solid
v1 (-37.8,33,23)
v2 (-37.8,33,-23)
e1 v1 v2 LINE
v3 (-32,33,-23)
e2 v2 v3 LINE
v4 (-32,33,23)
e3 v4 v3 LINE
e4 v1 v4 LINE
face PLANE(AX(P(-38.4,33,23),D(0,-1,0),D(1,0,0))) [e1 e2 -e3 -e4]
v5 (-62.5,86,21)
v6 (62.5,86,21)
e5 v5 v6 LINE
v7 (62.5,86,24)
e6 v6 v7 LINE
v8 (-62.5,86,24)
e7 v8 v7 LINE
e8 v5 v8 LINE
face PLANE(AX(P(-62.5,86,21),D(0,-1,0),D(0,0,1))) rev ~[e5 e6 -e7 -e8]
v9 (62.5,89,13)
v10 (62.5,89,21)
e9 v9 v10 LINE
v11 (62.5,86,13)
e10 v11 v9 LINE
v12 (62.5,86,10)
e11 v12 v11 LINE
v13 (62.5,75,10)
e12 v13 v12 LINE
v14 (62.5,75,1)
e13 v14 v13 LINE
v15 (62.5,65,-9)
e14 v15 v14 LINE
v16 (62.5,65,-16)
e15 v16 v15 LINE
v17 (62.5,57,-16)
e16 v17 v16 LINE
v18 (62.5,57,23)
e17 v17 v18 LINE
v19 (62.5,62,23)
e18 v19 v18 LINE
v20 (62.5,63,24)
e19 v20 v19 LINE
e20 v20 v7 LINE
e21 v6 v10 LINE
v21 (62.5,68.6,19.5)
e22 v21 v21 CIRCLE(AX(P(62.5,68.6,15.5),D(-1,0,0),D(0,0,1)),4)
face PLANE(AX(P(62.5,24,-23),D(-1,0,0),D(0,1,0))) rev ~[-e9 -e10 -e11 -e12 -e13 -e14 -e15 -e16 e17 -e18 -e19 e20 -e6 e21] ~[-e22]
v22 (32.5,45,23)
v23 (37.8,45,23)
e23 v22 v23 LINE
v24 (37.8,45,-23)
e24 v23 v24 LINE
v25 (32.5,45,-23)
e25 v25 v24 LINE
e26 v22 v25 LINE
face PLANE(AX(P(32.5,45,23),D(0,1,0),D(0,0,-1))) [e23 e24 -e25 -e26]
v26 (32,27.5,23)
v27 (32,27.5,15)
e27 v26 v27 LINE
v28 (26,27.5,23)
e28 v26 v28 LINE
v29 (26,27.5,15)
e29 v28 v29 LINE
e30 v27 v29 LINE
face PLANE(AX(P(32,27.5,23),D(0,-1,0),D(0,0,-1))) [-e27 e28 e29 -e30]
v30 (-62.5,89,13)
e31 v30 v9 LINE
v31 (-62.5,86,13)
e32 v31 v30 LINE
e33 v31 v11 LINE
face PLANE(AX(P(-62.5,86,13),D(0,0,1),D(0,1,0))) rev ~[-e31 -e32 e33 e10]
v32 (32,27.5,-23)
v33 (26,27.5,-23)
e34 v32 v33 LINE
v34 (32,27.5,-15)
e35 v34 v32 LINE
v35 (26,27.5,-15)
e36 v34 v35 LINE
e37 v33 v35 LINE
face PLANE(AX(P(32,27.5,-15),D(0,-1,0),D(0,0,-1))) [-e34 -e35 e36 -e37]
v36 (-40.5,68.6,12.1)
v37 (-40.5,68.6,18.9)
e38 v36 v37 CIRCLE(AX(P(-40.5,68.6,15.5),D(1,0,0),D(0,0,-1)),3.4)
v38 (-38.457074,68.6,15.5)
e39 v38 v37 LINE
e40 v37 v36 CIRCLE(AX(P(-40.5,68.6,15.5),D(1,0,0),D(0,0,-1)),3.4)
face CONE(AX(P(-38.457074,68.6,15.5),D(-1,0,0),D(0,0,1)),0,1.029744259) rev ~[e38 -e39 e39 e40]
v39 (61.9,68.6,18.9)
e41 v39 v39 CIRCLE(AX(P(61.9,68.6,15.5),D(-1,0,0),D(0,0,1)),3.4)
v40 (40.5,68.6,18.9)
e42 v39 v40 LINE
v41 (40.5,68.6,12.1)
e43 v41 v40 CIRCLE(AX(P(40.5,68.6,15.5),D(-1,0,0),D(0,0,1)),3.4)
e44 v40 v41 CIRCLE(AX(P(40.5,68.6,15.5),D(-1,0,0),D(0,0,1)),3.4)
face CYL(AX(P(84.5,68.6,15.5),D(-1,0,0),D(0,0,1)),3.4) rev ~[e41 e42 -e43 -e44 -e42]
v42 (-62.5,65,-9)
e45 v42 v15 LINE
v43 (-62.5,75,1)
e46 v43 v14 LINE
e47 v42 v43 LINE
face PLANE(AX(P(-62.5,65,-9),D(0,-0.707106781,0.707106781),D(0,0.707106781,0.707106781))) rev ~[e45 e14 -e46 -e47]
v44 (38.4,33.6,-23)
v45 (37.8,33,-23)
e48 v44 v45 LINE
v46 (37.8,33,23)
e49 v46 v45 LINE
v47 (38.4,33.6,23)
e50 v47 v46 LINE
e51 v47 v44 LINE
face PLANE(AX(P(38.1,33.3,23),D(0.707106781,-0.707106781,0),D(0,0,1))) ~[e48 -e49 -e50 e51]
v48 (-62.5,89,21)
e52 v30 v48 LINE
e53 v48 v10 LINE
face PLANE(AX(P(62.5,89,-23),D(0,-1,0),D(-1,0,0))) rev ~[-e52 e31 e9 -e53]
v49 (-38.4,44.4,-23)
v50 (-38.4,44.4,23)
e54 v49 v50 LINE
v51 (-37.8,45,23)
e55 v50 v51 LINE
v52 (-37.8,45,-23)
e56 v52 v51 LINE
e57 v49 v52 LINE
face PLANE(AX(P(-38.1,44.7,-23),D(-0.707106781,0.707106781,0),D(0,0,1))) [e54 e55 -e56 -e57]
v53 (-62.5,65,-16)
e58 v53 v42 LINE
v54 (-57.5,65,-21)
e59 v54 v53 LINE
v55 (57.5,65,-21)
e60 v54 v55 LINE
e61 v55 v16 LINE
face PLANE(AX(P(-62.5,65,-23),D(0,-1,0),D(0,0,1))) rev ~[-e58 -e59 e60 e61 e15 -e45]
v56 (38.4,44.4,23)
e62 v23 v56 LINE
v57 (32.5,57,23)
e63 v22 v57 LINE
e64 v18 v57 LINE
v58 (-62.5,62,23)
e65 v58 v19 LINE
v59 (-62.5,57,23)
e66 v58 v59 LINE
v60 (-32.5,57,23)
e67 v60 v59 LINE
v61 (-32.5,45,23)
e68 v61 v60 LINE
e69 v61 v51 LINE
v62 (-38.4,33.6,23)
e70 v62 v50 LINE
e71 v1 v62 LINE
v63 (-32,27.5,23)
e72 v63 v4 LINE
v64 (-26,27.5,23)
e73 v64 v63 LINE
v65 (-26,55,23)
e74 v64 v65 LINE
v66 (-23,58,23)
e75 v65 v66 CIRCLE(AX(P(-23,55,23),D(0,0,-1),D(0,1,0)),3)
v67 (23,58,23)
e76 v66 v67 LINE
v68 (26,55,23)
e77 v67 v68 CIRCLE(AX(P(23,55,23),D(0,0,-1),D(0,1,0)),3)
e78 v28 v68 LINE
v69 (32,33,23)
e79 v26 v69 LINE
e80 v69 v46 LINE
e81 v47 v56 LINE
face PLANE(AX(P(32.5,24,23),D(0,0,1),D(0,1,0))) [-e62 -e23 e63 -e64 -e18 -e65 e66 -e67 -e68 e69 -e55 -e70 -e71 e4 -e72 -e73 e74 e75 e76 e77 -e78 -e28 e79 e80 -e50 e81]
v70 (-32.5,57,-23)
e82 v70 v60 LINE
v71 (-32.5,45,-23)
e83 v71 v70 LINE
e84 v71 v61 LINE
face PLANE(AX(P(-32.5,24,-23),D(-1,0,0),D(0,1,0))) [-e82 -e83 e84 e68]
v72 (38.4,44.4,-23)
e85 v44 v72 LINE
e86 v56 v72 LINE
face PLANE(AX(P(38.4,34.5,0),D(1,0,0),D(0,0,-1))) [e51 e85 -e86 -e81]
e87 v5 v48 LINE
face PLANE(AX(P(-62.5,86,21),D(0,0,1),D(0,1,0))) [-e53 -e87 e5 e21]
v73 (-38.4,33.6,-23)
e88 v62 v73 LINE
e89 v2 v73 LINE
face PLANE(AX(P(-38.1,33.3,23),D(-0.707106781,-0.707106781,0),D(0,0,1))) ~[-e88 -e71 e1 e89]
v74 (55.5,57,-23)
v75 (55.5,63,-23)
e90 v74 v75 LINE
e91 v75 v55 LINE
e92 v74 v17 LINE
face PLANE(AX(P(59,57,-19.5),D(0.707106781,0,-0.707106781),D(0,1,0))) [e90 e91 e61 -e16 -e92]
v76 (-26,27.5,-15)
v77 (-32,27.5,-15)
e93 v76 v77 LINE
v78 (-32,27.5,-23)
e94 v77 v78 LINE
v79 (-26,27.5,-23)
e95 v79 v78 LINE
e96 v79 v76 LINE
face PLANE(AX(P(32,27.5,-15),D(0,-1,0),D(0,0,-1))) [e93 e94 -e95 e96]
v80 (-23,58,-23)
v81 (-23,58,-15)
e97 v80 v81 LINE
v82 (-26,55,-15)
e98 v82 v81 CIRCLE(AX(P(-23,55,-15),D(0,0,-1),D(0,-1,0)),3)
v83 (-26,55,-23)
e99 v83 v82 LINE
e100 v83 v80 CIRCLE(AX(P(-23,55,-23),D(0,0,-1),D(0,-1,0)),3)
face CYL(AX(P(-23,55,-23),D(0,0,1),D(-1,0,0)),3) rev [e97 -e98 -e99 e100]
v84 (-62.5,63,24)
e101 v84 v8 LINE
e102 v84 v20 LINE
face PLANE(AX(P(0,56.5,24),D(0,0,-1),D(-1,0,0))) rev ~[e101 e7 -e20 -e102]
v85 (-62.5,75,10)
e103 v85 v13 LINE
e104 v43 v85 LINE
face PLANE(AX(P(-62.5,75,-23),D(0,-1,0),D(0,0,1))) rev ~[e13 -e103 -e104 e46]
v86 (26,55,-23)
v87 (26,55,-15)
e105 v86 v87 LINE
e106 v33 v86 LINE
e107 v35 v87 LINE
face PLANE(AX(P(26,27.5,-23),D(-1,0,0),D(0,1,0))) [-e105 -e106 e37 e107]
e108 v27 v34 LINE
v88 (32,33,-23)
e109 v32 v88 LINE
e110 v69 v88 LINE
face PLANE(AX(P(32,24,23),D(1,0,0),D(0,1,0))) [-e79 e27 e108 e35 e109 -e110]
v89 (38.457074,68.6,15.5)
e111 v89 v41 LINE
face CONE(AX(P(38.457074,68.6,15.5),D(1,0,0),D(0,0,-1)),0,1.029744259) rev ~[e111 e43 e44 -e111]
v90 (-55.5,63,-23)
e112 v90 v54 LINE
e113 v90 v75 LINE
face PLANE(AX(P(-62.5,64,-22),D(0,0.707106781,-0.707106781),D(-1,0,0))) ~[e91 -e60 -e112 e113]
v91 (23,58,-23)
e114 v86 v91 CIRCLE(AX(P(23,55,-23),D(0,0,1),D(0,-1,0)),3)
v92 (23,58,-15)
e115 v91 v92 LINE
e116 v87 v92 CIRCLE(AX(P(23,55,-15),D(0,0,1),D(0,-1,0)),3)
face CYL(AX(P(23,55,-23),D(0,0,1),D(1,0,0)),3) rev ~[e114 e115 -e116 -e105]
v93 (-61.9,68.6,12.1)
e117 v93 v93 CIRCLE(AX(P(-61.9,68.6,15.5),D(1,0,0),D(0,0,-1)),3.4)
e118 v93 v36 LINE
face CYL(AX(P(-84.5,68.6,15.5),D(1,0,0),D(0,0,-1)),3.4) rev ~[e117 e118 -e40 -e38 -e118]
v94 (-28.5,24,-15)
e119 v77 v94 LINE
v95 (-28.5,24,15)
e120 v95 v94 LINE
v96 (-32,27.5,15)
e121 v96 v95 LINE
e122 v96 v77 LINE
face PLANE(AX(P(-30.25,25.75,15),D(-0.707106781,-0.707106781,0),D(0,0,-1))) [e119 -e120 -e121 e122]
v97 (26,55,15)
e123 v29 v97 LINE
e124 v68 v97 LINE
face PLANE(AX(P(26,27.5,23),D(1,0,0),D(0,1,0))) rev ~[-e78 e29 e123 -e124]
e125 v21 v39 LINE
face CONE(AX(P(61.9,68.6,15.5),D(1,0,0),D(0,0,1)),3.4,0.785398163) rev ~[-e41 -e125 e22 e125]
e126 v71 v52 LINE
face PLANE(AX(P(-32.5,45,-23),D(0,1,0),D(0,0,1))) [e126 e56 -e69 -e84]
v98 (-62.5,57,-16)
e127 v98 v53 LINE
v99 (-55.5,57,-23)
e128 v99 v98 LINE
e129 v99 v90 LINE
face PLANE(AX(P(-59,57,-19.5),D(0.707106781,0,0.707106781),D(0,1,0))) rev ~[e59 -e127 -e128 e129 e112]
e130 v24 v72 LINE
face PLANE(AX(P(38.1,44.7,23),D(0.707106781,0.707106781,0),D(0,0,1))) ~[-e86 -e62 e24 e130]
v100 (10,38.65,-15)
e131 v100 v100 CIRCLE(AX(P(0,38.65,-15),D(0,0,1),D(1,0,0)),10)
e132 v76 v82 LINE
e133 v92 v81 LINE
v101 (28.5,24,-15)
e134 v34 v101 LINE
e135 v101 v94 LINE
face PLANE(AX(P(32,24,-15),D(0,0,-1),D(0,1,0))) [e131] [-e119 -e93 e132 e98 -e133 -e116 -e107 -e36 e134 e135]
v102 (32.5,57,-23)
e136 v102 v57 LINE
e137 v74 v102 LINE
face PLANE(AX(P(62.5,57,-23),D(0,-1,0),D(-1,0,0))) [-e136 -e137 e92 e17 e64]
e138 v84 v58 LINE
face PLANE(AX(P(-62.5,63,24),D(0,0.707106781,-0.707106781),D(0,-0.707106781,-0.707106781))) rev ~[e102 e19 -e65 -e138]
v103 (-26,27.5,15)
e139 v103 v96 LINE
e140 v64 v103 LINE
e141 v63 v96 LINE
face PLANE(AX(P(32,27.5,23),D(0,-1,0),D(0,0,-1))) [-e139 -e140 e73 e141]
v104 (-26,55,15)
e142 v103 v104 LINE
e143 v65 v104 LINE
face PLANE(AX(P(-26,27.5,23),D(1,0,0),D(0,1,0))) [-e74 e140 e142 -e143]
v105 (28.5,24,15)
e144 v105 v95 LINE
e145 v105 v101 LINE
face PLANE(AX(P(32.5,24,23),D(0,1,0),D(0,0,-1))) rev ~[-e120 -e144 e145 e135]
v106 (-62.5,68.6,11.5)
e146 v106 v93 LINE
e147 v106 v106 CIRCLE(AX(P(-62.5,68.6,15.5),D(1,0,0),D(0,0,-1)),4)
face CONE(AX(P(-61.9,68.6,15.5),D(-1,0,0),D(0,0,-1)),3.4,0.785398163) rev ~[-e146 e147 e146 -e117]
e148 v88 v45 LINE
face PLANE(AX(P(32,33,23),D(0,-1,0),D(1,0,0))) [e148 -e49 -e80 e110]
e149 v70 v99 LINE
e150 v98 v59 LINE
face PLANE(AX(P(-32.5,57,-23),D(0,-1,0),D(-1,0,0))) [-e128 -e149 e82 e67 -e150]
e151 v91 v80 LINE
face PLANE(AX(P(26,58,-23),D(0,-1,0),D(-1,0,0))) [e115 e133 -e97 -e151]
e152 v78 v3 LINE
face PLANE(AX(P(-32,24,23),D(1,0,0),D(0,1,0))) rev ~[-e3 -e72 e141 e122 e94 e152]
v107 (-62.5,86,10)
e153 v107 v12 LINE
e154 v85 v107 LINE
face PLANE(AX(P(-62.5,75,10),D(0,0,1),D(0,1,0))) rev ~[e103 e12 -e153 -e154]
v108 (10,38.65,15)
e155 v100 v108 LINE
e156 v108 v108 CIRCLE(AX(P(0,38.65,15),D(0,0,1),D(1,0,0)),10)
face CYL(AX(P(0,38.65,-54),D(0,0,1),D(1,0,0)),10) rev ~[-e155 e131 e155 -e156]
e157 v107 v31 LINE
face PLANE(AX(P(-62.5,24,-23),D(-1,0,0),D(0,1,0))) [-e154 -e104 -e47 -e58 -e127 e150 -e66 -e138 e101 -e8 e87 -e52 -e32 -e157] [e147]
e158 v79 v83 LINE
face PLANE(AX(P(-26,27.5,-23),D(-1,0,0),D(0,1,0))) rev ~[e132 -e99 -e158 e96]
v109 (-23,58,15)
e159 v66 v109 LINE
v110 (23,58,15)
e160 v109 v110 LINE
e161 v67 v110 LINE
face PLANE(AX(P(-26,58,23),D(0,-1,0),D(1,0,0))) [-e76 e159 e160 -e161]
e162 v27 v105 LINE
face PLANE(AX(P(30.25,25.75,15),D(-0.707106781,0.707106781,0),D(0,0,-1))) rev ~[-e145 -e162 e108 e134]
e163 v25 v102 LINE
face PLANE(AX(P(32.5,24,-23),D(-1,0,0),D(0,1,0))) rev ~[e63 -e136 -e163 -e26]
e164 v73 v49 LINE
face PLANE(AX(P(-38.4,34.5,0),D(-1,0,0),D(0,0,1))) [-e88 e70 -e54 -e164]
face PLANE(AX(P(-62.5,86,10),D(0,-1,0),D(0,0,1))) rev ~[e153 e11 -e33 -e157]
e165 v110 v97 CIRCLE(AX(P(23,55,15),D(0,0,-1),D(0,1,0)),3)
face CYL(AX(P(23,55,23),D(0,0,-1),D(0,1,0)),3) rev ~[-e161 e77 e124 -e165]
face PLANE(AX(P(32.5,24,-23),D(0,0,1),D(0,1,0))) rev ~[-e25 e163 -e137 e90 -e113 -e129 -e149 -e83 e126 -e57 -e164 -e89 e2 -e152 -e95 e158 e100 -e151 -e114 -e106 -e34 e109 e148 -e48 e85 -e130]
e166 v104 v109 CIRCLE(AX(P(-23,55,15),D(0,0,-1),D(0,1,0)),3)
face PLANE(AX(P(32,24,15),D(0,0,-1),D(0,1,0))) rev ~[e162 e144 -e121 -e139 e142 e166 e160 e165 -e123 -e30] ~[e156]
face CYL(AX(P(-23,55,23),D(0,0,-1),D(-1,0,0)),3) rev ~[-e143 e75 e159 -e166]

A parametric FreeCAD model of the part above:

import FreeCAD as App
import Part
import Sketcher


def edges_at(feature, points):
    """Names of the edges that pass closest to the given points."""
    edges = feature.Shape.Edges
    near = lambda p: min(range(len(edges)), key=lambda i: edges[i].distToShape(Part.Vertex(*p))[0])
    return sorted({f"Edge{near(p) + 1}" for p in points})

doc = App.newDocument("Part")
body = doc.addObject("PartDesign::Body", "Body")

# Sketch on XY plane
sketch1 = body.newObject("Sketcher::SketchObject", "Sketch")
sketch1.AttachmentSupport = (doc.getObject("XY_Plane"), [""])
sketch1.MapMode = "FlatFace"
sketch1.AttachmentOffset = App.Placement(App.Vector(0, 0, -23), App.Rotation())
sketch1.addGeometry([
    Part.LineSegment(App.Vector(62.5, 89, 0), App.Vector(62.5, 24, 0)),
    Part.LineSegment(App.Vector(62.5, 24, 0), App.Vector(-62.5, 24, 0)),
    Part.LineSegment(App.Vector(-62.5, 24, 0), App.Vector(-62.5, 89, 0)),
    Part.LineSegment(App.Vector(-62.5, 89, 0), App.Vector(62.5, 89, 0)),
], False)
sketch1.addConstraint([
    Sketcher.Constraint("Coincident", 0, 2, 1, 1),
    Sketcher.Constraint("Coincident", 1, 2, 2, 1),
    Sketcher.Constraint("Coincident", 2, 2, 3, 1),
    Sketcher.Constraint("Coincident", 3, 2, 0, 1),
    Sketcher.Constraint("Vertical", 0),
    Sketcher.Constraint("Horizontal", 1),
    Sketcher.Constraint("Vertical", 2),
    Sketcher.Constraint("Horizontal", 3),
    Sketcher.Constraint("DistanceX", 1, 2, 1, 1, 125.0),
    Sketcher.Constraint("DistanceY", 0, 2, 0, 1, 65.0),
    Sketcher.Constraint("DistanceY", -1, 1, 0, 2, 24.0),
    Sketcher.Constraint("DistanceX", -1, 1, 0, 2, 62.5),
])
pad1 = body.newObject("PartDesign::Pad", "Pad")
pad1.Profile = sketch1
pad1.Length = 47

# Sketch on YZ plane
sketch2 = body.newObject("Sketcher::SketchObject", "Sketch001")
sketch2.AttachmentSupport = (doc.getObject("YZ_Plane"), [""])
sketch2.MapMode = "FlatFace"
sketch2.AttachmentOffset = App.Placement(App.Vector(0, 0, -62.5), App.Rotation())
sketch2.addGeometry([
    Part.LineSegment(App.Vector(24, 24, 0), App.Vector(63, 24, 0)),
    Part.LineSegment(App.Vector(63, 24, 0), App.Vector(62, 23, 0)),
    Part.LineSegment(App.Vector(62, 23, 0), App.Vector(24, 23, 0)),
    Part.LineSegment(App.Vector(24, 23, 0), App.Vector(24, 24, 0)),
], False)
sketch2.addConstraint([
    Sketcher.Constraint("Coincident", 0, 2, 1, 1),
    Sketcher.Constraint("Coincident", 1, 2, 2, 1),
    Sketcher.Constraint("Coincident", 2, 2, 3, 1),
    Sketcher.Constraint("Coincident", 3, 2, 0, 1),
    Sketcher.Constraint("Horizontal", 0),
    Sketcher.Constraint("Horizontal", 2),
    Sketcher.Constraint("Vertical", 3),
    Sketcher.Constraint("DistanceX", 0, 1, 0, 2, 39.0),
    Sketcher.Constraint("DistanceX", 2, 2, 2, 1, 38.0),
    Sketcher.Constraint("DistanceY", 3, 1, 3, 2, 1.0),
    Sketcher.Constraint("DistanceX", -1, 1, 0, 2, 63.0),
    Sketcher.Constraint("DistanceY", -1, 1, 0, 2, 24.0),
])
pocket1 = body.newObject("PartDesign::Pocket", "Pocket")
pocket1.Profile = sketch2
pocket1.Type = "ThroughAll"
pocket1.Reversed = True

# Sketch on XY plane
sketch3 = body.newObject("Sketcher::SketchObject", "Sketch002")
sketch3.AttachmentSupport = (doc.getObject("XY_Plane"), [""])
sketch3.MapMode = "FlatFace"
sketch3.AttachmentOffset = App.Placement(App.Vector(0, 0, -23), App.Rotation())
sketch3.addGeometry([
    Part.LineSegment(App.Vector(-32.5, 57, 0), App.Vector(-32.5, 24, 0)),
    Part.LineSegment(App.Vector(-32.5, 24, 0), App.Vector(-62.5, 24, 0)),
    Part.LineSegment(App.Vector(-62.5, 24, 0), App.Vector(-62.5, 57, 0)),
    Part.LineSegment(App.Vector(-62.5, 57, 0), App.Vector(-32.5, 57, 0)),
], False)
sketch3.addConstraint([
    Sketcher.Constraint("Coincident", 0, 2, 1, 1),
    Sketcher.Constraint("Coincident", 1, 2, 2, 1),
    Sketcher.Constraint("Coincident", 2, 2, 3, 1),
    Sketcher.Constraint("Coincident", 3, 2, 0, 1),
    Sketcher.Constraint("Vertical", 0),
    Sketcher.Constraint("Horizontal", 1),
    Sketcher.Constraint("Vertical", 2),
    Sketcher.Constraint("Horizontal", 3),
    Sketcher.Constraint("DistanceX", 1, 2, 1, 1, 30.0),
    Sketcher.Constraint("DistanceY", 0, 2, 0, 1, 33.0),
    Sketcher.Constraint("DistanceY", -1, 1, 0, 2, 24.0),
    Sketcher.Constraint("DistanceX", 0, 2, -1, 1, 32.5),
])
pocket2 = body.newObject("PartDesign::Pocket", "Pocket001")
pocket2.Profile = sketch3
pocket2.Type = "ThroughAll"
pocket2.Reversed = True

# Sketch on YZ plane
sketch4 = body.newObject("Sketcher::SketchObject", "Sketch003")
sketch4.AttachmentSupport = (doc.getObject("YZ_Plane"), [""])
sketch4.MapMode = "FlatFace"
sketch4.AttachmentOffset = App.Placement(App.Vector(0, 0, -32.5), App.Rotation())
sketch4.addGeometry([
    Part.LineSegment(App.Vector(45, -23, 0), App.Vector(24, -23, 0)),
    Part.LineSegment(App.Vector(24, -23, 0), App.Vector(24, 23, 0)),
    Part.LineSegment(App.Vector(24, 23, 0), App.Vector(45, 23, 0)),
    Part.LineSegment(App.Vector(45, 23, 0), App.Vector(45, -23, 0)),
], False)
sketch4.addConstraint([
    Sketcher.Constraint("Coincident", 0, 2, 1, 1),
    Sketcher.Constraint("Coincident", 1, 2, 2, 1),
    Sketcher.Constraint("Coincident", 2, 2, 3, 1),
    Sketcher.Constraint("Coincident", 3, 2, 0, 1),
    Sketcher.Constraint("Horizontal", 0),
    Sketcher.Constraint("Vertical", 1),
    Sketcher.Constraint("Horizontal", 2),
    Sketcher.Constraint("Vertical", 3),
    Sketcher.Constraint("DistanceX", 0, 2, 0, 1, 21.0),
    Sketcher.Constraint("DistanceY", 1, 1, 1, 2, 46.0),
    Sketcher.Constraint("DistanceX", -1, 1, 0, 2, 24.0),
    Sketcher.Constraint("DistanceY", 0, 2, -1, 1, 23.0),
])
pad2 = body.newObject("PartDesign::Pad", "Pad001")
pad2.Profile = sketch4
pad2.Length = 5.9
pad2.Reversed = True

# Sketch on XY plane
sketch5 = body.newObject("Sketcher::SketchObject", "Sketch004")
sketch5.AttachmentSupport = (doc.getObject("XY_Plane"), [""])
sketch5.MapMode = "FlatFace"
sketch5.AttachmentOffset = App.Placement(App.Vector(0, 0, -23), App.Rotation())
sketch5.addGeometry([
    Part.LineSegment(App.Vector(62.5, 57, 0), App.Vector(62.5, 24, 0)),
    Part.LineSegment(App.Vector(62.5, 24, 0), App.Vector(32.5, 24, 0)),
    Part.LineSegment(App.Vector(32.5, 24, 0), App.Vector(32.5, 57, 0)),
    Part.LineSegment(App.Vector(32.5, 57, 0), App.Vector(62.5, 57, 0)),
], False)
sketch5.addConstraint([
    Sketcher.Constraint("Coincident", 0, 2, 1, 1),
    Sketcher.Constraint("Coincident", 1, 2, 2, 1),
    Sketcher.Constraint("Coincident", 2, 2, 3, 1),
    Sketcher.Constraint("Coincident", 3, 2, 0, 1),
    Sketcher.Constraint("Vertical", 0),
    Sketcher.Constraint("Horizontal", 1),
    Sketcher.Constraint("Vertical", 2),
    Sketcher.Constraint("Horizontal", 3),
    Sketcher.Constraint("DistanceX", 1, 2, 1, 1, 30.0),
    Sketcher.Constraint("DistanceY", 0, 2, 0, 1, 33.0),
    Sketcher.Constraint("DistanceY", -1, 1, 0, 2, 24.0),
    Sketcher.Constraint("DistanceX", -1, 1, 0, 2, 62.5),
])
pocket3 = body.newObject("PartDesign::Pocket", "Pocket002")
pocket3.Profile = sketch5
pocket3.Type = "ThroughAll"
pocket3.Reversed = True

# Sketch on YZ plane
sketch6 = body.newObject("Sketcher::SketchObject", "Sketch005")
sketch6.AttachmentSupport = (doc.getObject("YZ_Plane"), [""])
sketch6.MapMode = "FlatFace"
sketch6.AttachmentOffset = App.Placement(App.Vector(0, 0, 32.5), App.Rotation())
sketch6.addGeometry([
    Part.LineSegment(App.Vector(45, 23, 0), App.Vector(24, 23, 0)),
    Part.LineSegment(App.Vector(24, 23, 0), App.Vector(24, -23, 0)),
    Part.LineSegment(App.Vector(24, -23, 0), App.Vector(45, -23, 0)),
    Part.LineSegment(App.Vector(45, -23, 0), App.Vector(45, 23, 0)),
], False)
sketch6.addConstraint([
    Sketcher.Constraint("Coincident", 0, 2, 1, 1),
    Sketcher.Constraint("Coincident", 1, 2, 2, 1),
    Sketcher.Constraint("Coincident", 2, 2, 3, 1),
    Sketcher.Constraint("Coincident", 3, 2, 0, 1),
    Sketcher.Constraint("Horizontal", 0),
    Sketcher.Constraint("Vertical", 1),
    Sketcher.Constraint("Horizontal", 2),
    Sketcher.Constraint("Vertical", 3),
    Sketcher.Constraint("DistanceX", 0, 2, 0, 1, 21.0),
    Sketcher.Constraint("DistanceY", 1, 2, 1, 1, 46.0),
    Sketcher.Constraint("DistanceX", -1, 1, 0, 2, 24.0),
    Sketcher.Constraint("DistanceY", -1, 1, 0, 2, 23.0),
])
pad3 = body.newObject("PartDesign::Pad", "Pad002")
pad3.Profile = sketch6
pad3.Length = 5.9

# Sketch on XY plane
sketch7 = body.newObject("Sketcher::SketchObject", "Sketch006")
sketch7.AttachmentSupport = (doc.getObject("XY_Plane"), [""])
sketch7.MapMode = "FlatFace"
sketch7.AttachmentOffset = App.Placement(App.Vector(0, 0, 23), App.Rotation())
sketch7.addGeometry([
    Part.LineSegment(App.Vector(32, 33, 0), App.Vector(32, 24, 0)),
    Part.LineSegment(App.Vector(32, 24, 0), App.Vector(38.4, 24, 0)),
    Part.LineSegment(App.Vector(38.4, 24, 0), App.Vector(38.4, 33, 0)),
    Part.LineSegment(App.Vector(38.4, 33, 0), App.Vector(32, 33, 0)),
], False)
sketch7.addConstraint([
    Sketcher.Constraint("Coincident", 0, 2, 1, 1),
    Sketcher.Constraint("Coincident", 1, 2, 2, 1),
    Sketcher.Constraint("Coincident", 2, 2, 3, 1),
    Sketcher.Constraint("Coincident", 3, 2, 0, 1),
    Sketcher.Constraint("Vertical", 0),
    Sketcher.Constraint("Horizontal", 1),
    Sketcher.Constraint("Vertical", 2),
    Sketcher.Constraint("Horizontal", 3),
    Sketcher.Constraint("DistanceY", 0, 2, 0, 1, 9.0),
    Sketcher.Constraint("DistanceX", 1, 1, 1, 2, 6.4),
    Sketcher.Constraint("DistanceX", -1, 1, 0, 2, 32.0),
    Sketcher.Constraint("DistanceY", -1, 1, 0, 2, 24.0),
])
pocket4 = body.newObject("PartDesign::Pocket", "Pocket003")
pocket4.Profile = sketch7
pocket4.Type = "ThroughAll"

# Sketch on XY plane
sketch8 = body.newObject("Sketcher::SketchObject", "Sketch007")
sketch8.AttachmentSupport = (doc.getObject("XY_Plane"), [""])
sketch8.MapMode = "FlatFace"
sketch8.AttachmentOffset = App.Placement(App.Vector(0, 0, 23), App.Rotation())
sketch8.addGeometry([
    Part.LineSegment(App.Vector(-38.4, 33, 0), App.Vector(-38.4, 24, 0)),
    Part.LineSegment(App.Vector(-38.4, 24, 0), App.Vector(-32, 24, 0)),
    Part.LineSegment(App.Vector(-32, 24, 0), App.Vector(-32, 33, 0)),
    Part.LineSegment(App.Vector(-32, 33, 0), App.Vector(-38.4, 33, 0)),
], False)
sketch8.addConstraint([
    Sketcher.Constraint("Coincident", 0, 2, 1, 1),
    Sketcher.Constraint("Coincident", 1, 2, 2, 1),
    Sketcher.Constraint("Coincident", 2, 2, 3, 1),
    Sketcher.Constraint("Coincident", 3, 2, 0, 1),
    Sketcher.Constraint("Vertical", 0),
    Sketcher.Constraint("Horizontal", 1),
    Sketcher.Constraint("Vertical", 2),
    Sketcher.Constraint("Horizontal", 3),
    Sketcher.Constraint("DistanceY", 0, 2, 0, 1, 9.0),
    Sketcher.Constraint("DistanceX", 1, 1, 1, 2, 6.4),
    Sketcher.Constraint("DistanceY", -1, 1, 0, 2, 24.0),
    Sketcher.Constraint("DistanceX", 1, 2, -1, 1, 32.0),
])
pocket5 = body.newObject("PartDesign::Pocket", "Pocket004")
pocket5.Profile = sketch8
pocket5.Type = "ThroughAll"

# Sketch on YZ plane
sketch9 = body.newObject("Sketcher::SketchObject", "Sketch008")
sketch9.AttachmentSupport = (doc.getObject("YZ_Plane"), [""])
sketch9.MapMode = "FlatFace"
sketch9.AttachmentOffset = App.Placement(App.Vector(0, 0, 32), App.Rotation())
sketch9.addGeometry([
    Part.LineSegment(App.Vector(27.5, 23, 0), App.Vector(24, 23, 0)),
    Part.LineSegment(App.Vector(24, 23, 0), App.Vector(24, 15, 0)),
    Part.LineSegment(App.Vector(24, 15, 0), App.Vector(27.5, 15, 0)),
    Part.LineSegment(App.Vector(27.5, 15, 0), App.Vector(27.5, 23, 0)),
], False)
sketch9.addConstraint([
    Sketcher.Constraint("Coincident", 0, 2, 1, 1),
    Sketcher.Constraint("Coincident", 1, 2, 2, 1),
    Sketcher.Constraint("Coincident", 2, 2, 3, 1),
    Sketcher.Constraint("Coincident", 3, 2, 0, 1),
    Sketcher.Constraint("Horizontal", 0),
    Sketcher.Constraint("Vertical", 1),
    Sketcher.Constraint("Horizontal", 2),
    Sketcher.Constraint("Vertical", 3),
    Sketcher.Constraint("DistanceY", 1, 2, 1, 1, 8.0),
    Sketcher.Constraint("DistanceX", 0, 2, 0, 1, 3.5),
    Sketcher.Constraint("DistanceX", -1, 1, 0, 2, 24.0),
    Sketcher.Constraint("DistanceY", -1, 1, 0, 2, 23.0),
])
pocket6 = body.newObject("PartDesign::Pocket", "Pocket005")
pocket6.Profile = sketch9
pocket6.Type = "ThroughAll"

# Sketch on XY plane
sketch10 = body.newObject("Sketcher::SketchObject", "Sketch009")
sketch10.AttachmentSupport = (doc.getObject("XY_Plane"), [""])
sketch10.MapMode = "FlatFace"
sketch10.AttachmentOffset = App.Placement(App.Vector(0, 0, 23), App.Rotation())
sketch10.addGeometry([
    Part.LineSegment(App.Vector(-26, 58, 0), App.Vector(-26, 27.5, 0)),
    Part.LineSegment(App.Vector(-26, 27.5, 0), App.Vector(26, 27.5, 0)),
    Part.LineSegment(App.Vector(26, 27.5, 0), App.Vector(26, 58, 0)),
    Part.LineSegment(App.Vector(26, 58, 0), App.Vector(-26, 58, 0)),
], False)
sketch10.addConstraint([
    Sketcher.Constraint("Coincident", 0, 2, 1, 1),
    Sketcher.Constraint("Coincident", 1, 2, 2, 1),
    Sketcher.Constraint("Coincident", 2, 2, 3, 1),
    Sketcher.Constraint("Coincident", 3, 2, 0, 1),
    Sketcher.Constraint("Vertical", 0),
    Sketcher.Constraint("Horizontal", 1),
    Sketcher.Constraint("Vertical", 2),
    Sketcher.Constraint("Horizontal", 3),
    Sketcher.Constraint("DistanceX", 1, 1, 1, 2, 52.0),
    Sketcher.Constraint("DistanceY", 0, 2, 0, 1, 30.5),
    Sketcher.Constraint("DistanceX", 0, 2, -1, 1, 26.0),
    Sketcher.Constraint("DistanceY", -1, 1, 2, 2, 58.0),
])
pocket7 = body.newObject("PartDesign::Pocket", "Pocket006")
pocket7.Profile = sketch10
pocket7.Length = 8

# Sketch on YZ plane
sketch11 = body.newObject("Sketcher::SketchObject", "Sketch010")
sketch11.AttachmentSupport = (doc.getObject("YZ_Plane"), [""])
sketch11.MapMode = "FlatFace"
sketch11.AttachmentOffset = App.Placement(App.Vector(0, 0, 32), App.Rotation())
sketch11.addGeometry([
    Part.LineSegment(App.Vector(27.5, -15, 0), App.Vector(24, -15, 0)),
    Part.LineSegment(App.Vector(24, -15, 0), App.Vector(24, -23, 0)),
    Part.LineSegment(App.Vector(24, -23, 0), App.Vector(27.5, -23, 0)),
    Part.LineSegment(App.Vector(27.5, -23, 0), App.Vector(27.5, -15, 0)),
], False)
sketch11.addConstraint([
    Sketcher.Constraint("Coincident", 0, 2, 1, 1),
    Sketcher.Constraint("Coincident", 1, 2, 2, 1),
    Sketcher.Constraint("Coincident", 2, 2, 3, 1),
    Sketcher.Constraint("Coincident", 3, 2, 0, 1),
    Sketcher.Constraint("Horizontal", 0),
    Sketcher.Constraint("Vertical", 1),
    Sketcher.Constraint("Horizontal", 2),
    Sketcher.Constraint("Vertical", 3),
    Sketcher.Constraint("DistanceY", 1, 2, 1, 1, 8.0),
    Sketcher.Constraint("DistanceX", 0, 2, 0, 1, 3.5),
    Sketcher.Constraint("DistanceX", -1, 1, 0, 2, 24.0),
    Sketcher.Constraint("DistanceY", 0, 2, -1, 1, 15.0),
])
pocket8 = body.newObject("PartDesign::Pocket", "Pocket007")
pocket8.Profile = sketch11
pocket8.Type = "ThroughAll"

# Sketch on XY plane
sketch12 = body.newObject("Sketcher::SketchObject", "Sketch011")
sketch12.AttachmentSupport = (doc.getObject("XY_Plane"), [""])
sketch12.MapMode = "FlatFace"
sketch12.AttachmentOffset = App.Placement(App.Vector(0, 0, -23), App.Rotation())
sketch12.addGeometry([
    Part.LineSegment(App.Vector(26, 58, 0), App.Vector(26, 27.5, 0)),
    Part.LineSegment(App.Vector(26, 27.5, 0), App.Vector(-26, 27.5, 0)),
    Part.LineSegment(App.Vector(-26, 27.5, 0), App.Vector(-26, 58, 0)),
    Part.LineSegment(App.Vector(-26, 58, 0), App.Vector(26, 58, 0)),
], False)
sketch12.addConstraint([
    Sketcher.Constraint("Coincident", 0, 2, 1, 1),
    Sketcher.Constraint("Coincident", 1, 2, 2, 1),
    Sketcher.Constraint("Coincident", 2, 2, 3, 1),
    Sketcher.Constraint("Coincident", 3, 2, 0, 1),
    Sketcher.Constraint("Vertical", 0),
    Sketcher.Constraint("Horizontal", 1),
    Sketcher.Constraint("Vertical", 2),
    Sketcher.Constraint("Horizontal", 3),
    Sketcher.Constraint("DistanceX", 1, 2, 1, 1, 52.0),
    Sketcher.Constraint("DistanceY", 0, 2, 0, 1, 30.5),
    Sketcher.Constraint("DistanceX", -1, 1, 0, 2, 26.0),
    Sketcher.Constraint("DistanceY", -1, 1, 2, 2, 58.0),
])
pocket9 = body.newObject("PartDesign::Pocket", "Pocket008")
pocket9.Profile = sketch12
pocket9.Length = 8
pocket9.Reversed = True

# Sketch on YZ plane
sketch13 = body.newObject("Sketcher::SketchObject", "Sketch012")
sketch13.AttachmentSupport = (doc.getObject("YZ_Plane"), [""])
sketch13.MapMode = "FlatFace"
sketch13.AttachmentOffset = App.Placement(App.Vector(0, 0, -62.5), App.Rotation())
sketch13.addGeometry([
    Part.LineSegment(App.Vector(89, -23, 0), App.Vector(75, -23, 0)),
    Part.LineSegment(App.Vector(75, -23, 0), App.Vector(75, 10, 0)),
    Part.LineSegment(App.Vector(75, 10, 0), App.Vector(89, 10, 0)),
    Part.LineSegment(App.Vector(89, 10, 0), App.Vector(89, -23, 0)),
], False)
sketch13.addConstraint([
    Sketcher.Constraint("Coincident", 0, 2, 1, 1),
    Sketcher.Constraint("Coincident", 1, 2, 2, 1),
    Sketcher.Constraint("Coincident", 2, 2, 3, 1),
    Sketcher.Constraint("Coincident", 3, 2, 0, 1),
    Sketcher.Constraint("Horizontal", 0),
    Sketcher.Constraint("Vertical", 1),
    Sketcher.Constraint("Horizontal", 2),
    Sketcher.Constraint("Vertical", 3),
    Sketcher.Constraint("DistanceX", 0, 2, 0, 1, 14.0),
    Sketcher.Constraint("DistanceY", 1, 1, 1, 2, 33.0),
    Sketcher.Constraint("DistanceX", -1, 1, 0, 2, 75.0),
    Sketcher.Constraint("DistanceY", 0, 2, -1, 1, 23.0),
])
pocket10 = body.newObject("PartDesign::Pocket", "Pocket009")
pocket10.Profile = sketch13
pocket10.Type = "ThroughAll"
pocket10.Reversed = True

# Sketch on YZ plane
sketch14 = body.newObject("Sketcher::SketchObject", "Sketch013")
sketch14.AttachmentSupport = (doc.getObject("YZ_Plane"), [""])
sketch14.MapMode = "FlatFace"
sketch14.AttachmentOffset = App.Placement(App.Vector(0, 0, -62.5), App.Rotation())
sketch14.addGeometry([
    Part.LineSegment(App.Vector(75, -23, 0), App.Vector(65, -23, 0)),
    Part.LineSegment(App.Vector(65, -23, 0), App.Vector(65, -9, 0)),
    Part.LineSegment(App.Vector(65, -9, 0), App.Vector(75, 1, 0)),
    Part.LineSegment(App.Vector(75, 1, 0), App.Vector(75, -23, 0)),
], False)
sketch14.addConstraint([
    Sketcher.Constraint("Coincident", 0, 2, 1, 1),
    Sketcher.Constraint("Coincident", 1, 2, 2, 1),
    Sketcher.Constraint("Coincident", 2, 2, 3, 1),
    Sketcher.Constraint("Coincident", 3, 2, 0, 1),
    Sketcher.Constraint("Horizontal", 0),
    Sketcher.Constraint("Vertical", 1),
    Sketcher.Constraint("Vertical", 3),
    Sketcher.Constraint("DistanceX", 0, 2, 0, 1, 10.0),
    Sketcher.Constraint("DistanceY", 1, 1, 1, 2, 14.0),
    Sketcher.Constraint("DistanceY", 3, 2, 3, 1, 24.0),
    Sketcher.Constraint("DistanceX", -1, 1, 0, 2, 65.0),
    Sketcher.Constraint("DistanceY", 0, 2, -1, 1, 23.0),
])
pocket11 = body.newObject("PartDesign::Pocket", "Pocket010")
pocket11.Profile = sketch14
pocket11.Type = "ThroughAll"
pocket11.Reversed = True

# Sketch on YZ plane
sketch15 = body.newObject("Sketcher::SketchObject", "Sketch014")
sketch15.AttachmentSupport = (doc.getObject("YZ_Plane"), [""])
sketch15.MapMode = "FlatFace"
sketch15.AttachmentOffset = App.Placement(App.Vector(0, 0, -62.5), App.Rotation())
sketch15.addGeometry([
    Part.LineSegment(App.Vector(89, 10, 0), App.Vector(86, 10, 0)),
    Part.LineSegment(App.Vector(86, 10, 0), App.Vector(86, 13, 0)),
    Part.LineSegment(App.Vector(86, 13, 0), App.Vector(89, 13, 0)),
    Part.LineSegment(App.Vector(89, 13, 0), App.Vector(89, 10, 0)),
], False)
sketch15.addConstraint([
    Sketcher.Constraint("Coincident", 0, 2, 1, 1),
    Sketcher.Constraint("Coincident", 1, 2, 2, 1),
    Sketcher.Constraint("Coincident", 2, 2, 3, 1),
    Sketcher.Constraint("Coincident", 3, 2, 0, 1),
    Sketcher.Constraint("Horizontal", 0),
    Sketcher.Constraint("Vertical", 1),
    Sketcher.Constraint("Horizontal", 2),
    Sketcher.Constraint("Vertical", 3),
    Sketcher.Constraint("Equal", 2, 1),
    Sketcher.Constraint("DistanceX", 0, 2, 0, 1, 3.0),
    Sketcher.Constraint("DistanceX", -1, 1, 0, 2, 86.0),
    Sketcher.Constraint("DistanceY", -1, 1, 0, 2, 10.0),
])
pocket12 = body.newObject("PartDesign::Pocket", "Pocket011")
pocket12.Profile = sketch15
pocket12.Type = "ThroughAll"
pocket12.Reversed = True

# Sketch on YZ plane
sketch16 = body.newObject("Sketcher::SketchObject", "Sketch015")
sketch16.AttachmentSupport = (doc.getObject("YZ_Plane"), [""])
sketch16.MapMode = "FlatFace"
sketch16.AttachmentOffset = App.Placement(App.Vector(0, 0, -62.5), App.Rotation())
sketch16.addGeometry([
    Part.LineSegment(App.Vector(89, 21, 0), App.Vector(86, 21, 0)),
    Part.LineSegment(App.Vector(86, 21, 0), App.Vector(86, 24, 0)),
    Part.LineSegment(App.Vector(86, 24, 0), App.Vector(89, 24, 0)),
    Part.LineSegment(App.Vector(89, 24, 0), App.Vector(89, 21, 0)),
], False)
sketch16.addConstraint([
    Sketcher.Constraint("Coincident", 0, 2, 1, 1),
    Sketcher.Constraint("Coincident", 1, 2, 2, 1),
    Sketcher.Constraint("Coincident", 2, 2, 3, 1),
    Sketcher.Constraint("Coincident", 3, 2, 0, 1),
    Sketcher.Constraint("Horizontal", 0),
    Sketcher.Constraint("Vertical", 1),
    Sketcher.Constraint("Horizontal", 2),
    Sketcher.Constraint("Vertical", 3),
    Sketcher.Constraint("Equal", 2, 1),
    Sketcher.Constraint("DistanceX", 0, 2, 0, 1, 3.0),
    Sketcher.Constraint("DistanceX", -1, 1, 0, 2, 86.0),
    Sketcher.Constraint("DistanceY", -1, 1, 0, 2, 21.0),
])
pocket13 = body.newObject("PartDesign::Pocket", "Pocket012")
pocket13.Profile = sketch16
pocket13.Type = "ThroughAll"
pocket13.Reversed = True

# Sketch on YZ plane
sketch17 = body.newObject("Sketcher::SketchObject", "Sketch016")
sketch17.AttachmentSupport = (doc.getObject("YZ_Plane"), [""])
sketch17.MapMode = "FlatFace"
sketch17.AttachmentOffset = App.Placement(App.Vector(0, 0, -62.5), App.Rotation())
sketch17.addGeometry(Part.Circle(App.Vector(68.6, 15.5, 0), App.Vector(0, 0, 1), 3.4), False)
sketch17.addConstraint([
    Sketcher.Constraint("Diameter", 0, 6.8),
    Sketcher.Constraint("DistanceX", -1, 1, 0, 3, 68.6),
    Sketcher.Constraint("DistanceY", -1, 1, 0, 3, 15.5),
])
doc.recompute()
hole = body.newObject("PartDesign::Hole", "Hole")
hole.Profile = sketch17
hole.ThreadType = "None"
hole.Diameter = 6.8
hole.DepthType = "Dimension"
hole.Depth = 22
hole.DrillPoint = "Angled"
hole.DrillPointAngle = 118
hole.Reversed = True

# Sketch on YZ plane
sketch18 = body.newObject("Sketcher::SketchObject", "Sketch017")
sketch18.AttachmentSupport = (doc.getObject("YZ_Plane"), [""])
sketch18.MapMode = "FlatFace"
sketch18.AttachmentOffset = App.Placement(App.Vector(0, 0, 62.5), App.Rotation())
sketch18.addGeometry(Part.Circle(App.Vector(68.6, 15.5, 0), App.Vector(0, 0, 1), 3.4), False)
sketch18.addConstraint([
    Sketcher.Constraint("Diameter", 0, 6.8),
    Sketcher.Constraint("DistanceX", -1, 1, 0, 3, 68.6),
    Sketcher.Constraint("DistanceY", -1, 1, 0, 3, 15.5),
])
doc.recompute()
hole2 = body.newObject("PartDesign::Hole", "Hole001")
hole2.Profile = sketch18
hole2.ThreadType = "None"
hole2.Diameter = 6.8
hole2.DepthType = "Dimension"
hole2.Depth = 22
hole2.DrillPoint = "Angled"
hole2.DrillPointAngle = 118

# Sketch on XY plane
sketch19 = body.newObject("Sketcher::SketchObject", "Sketch018")
sketch19.AttachmentSupport = (doc.getObject("XY_Plane"), [""])
sketch19.MapMode = "FlatFace"
sketch19.AttachmentOffset = App.Placement(App.Vector(0, 0, -15), App.Rotation())
sketch19.addGeometry(Part.Circle(App.Vector(0, 38.65, 0), App.Vector(0, 0, 1), 10), False)
sketch19.addConstraint([
    Sketcher.Constraint("PointOnObject", 0, 3, -2),
    Sketcher.Constraint("Diameter", 0, 20.0),
    Sketcher.Constraint("DistanceY", -1, 1, 0, 3, 38.65),
])
doc.recompute()
hole3 = body.newObject("PartDesign::Hole", "Hole002")
hole3.Profile = sketch19
hole3.ThreadType = "None"
hole3.Diameter = 20
hole3.DepthType = "Dimension"
hole3.Depth = 39
hole3.DrillPoint = "Flat"
hole3.Reversed = True
doc.recompute()

chamfer = body.newObject("PartDesign::Chamfer", "Chamfer")
chamfer.Base = (hole3, edges_at(hole3, [
    (38.4, 33, 0),
    (-38.4, 33, 0),
    (-62.5, 68.6, 18.9),
    (62.5, 68.6, 12.1),
    (-38.4, 45, 0),
    (38.4, 45, 0),
]))
chamfer.Size = 0.6
doc.recompute()

chamfer2 = body.newObject("PartDesign::Chamfer", "Chamfer001")
chamfer2.Base = (chamfer, edges_at(chamfer, [(0, 65, -23)]))
chamfer2.Size = 2
doc.recompute()

chamfer3 = body.newObject("PartDesign::Chamfer", "Chamfer002")
chamfer3.Base = (chamfer2, edges_at(chamfer2, [(32, 24, 0), (-32, 24, 0)]))
chamfer3.Size = 3.5
doc.recompute()

chamfer4 = body.newObject("PartDesign::Chamfer", "Chamfer003")
chamfer4.Base = (chamfer3, edges_at(chamfer3, [(-62.5, 60, -23), (62.5, 60, -23)]))
chamfer4.Size = 7
doc.recompute()

fillet = body.newObject("PartDesign::Fillet", "Fillet")
fillet.Base = (chamfer4, edges_at(chamfer4, [
    (-26, 58, 19),
    (26, 58, 19),
    (-26, 58, -19),
    (26, 58, -19),
]))
fillet.Radius = 3

doc.recompute()
